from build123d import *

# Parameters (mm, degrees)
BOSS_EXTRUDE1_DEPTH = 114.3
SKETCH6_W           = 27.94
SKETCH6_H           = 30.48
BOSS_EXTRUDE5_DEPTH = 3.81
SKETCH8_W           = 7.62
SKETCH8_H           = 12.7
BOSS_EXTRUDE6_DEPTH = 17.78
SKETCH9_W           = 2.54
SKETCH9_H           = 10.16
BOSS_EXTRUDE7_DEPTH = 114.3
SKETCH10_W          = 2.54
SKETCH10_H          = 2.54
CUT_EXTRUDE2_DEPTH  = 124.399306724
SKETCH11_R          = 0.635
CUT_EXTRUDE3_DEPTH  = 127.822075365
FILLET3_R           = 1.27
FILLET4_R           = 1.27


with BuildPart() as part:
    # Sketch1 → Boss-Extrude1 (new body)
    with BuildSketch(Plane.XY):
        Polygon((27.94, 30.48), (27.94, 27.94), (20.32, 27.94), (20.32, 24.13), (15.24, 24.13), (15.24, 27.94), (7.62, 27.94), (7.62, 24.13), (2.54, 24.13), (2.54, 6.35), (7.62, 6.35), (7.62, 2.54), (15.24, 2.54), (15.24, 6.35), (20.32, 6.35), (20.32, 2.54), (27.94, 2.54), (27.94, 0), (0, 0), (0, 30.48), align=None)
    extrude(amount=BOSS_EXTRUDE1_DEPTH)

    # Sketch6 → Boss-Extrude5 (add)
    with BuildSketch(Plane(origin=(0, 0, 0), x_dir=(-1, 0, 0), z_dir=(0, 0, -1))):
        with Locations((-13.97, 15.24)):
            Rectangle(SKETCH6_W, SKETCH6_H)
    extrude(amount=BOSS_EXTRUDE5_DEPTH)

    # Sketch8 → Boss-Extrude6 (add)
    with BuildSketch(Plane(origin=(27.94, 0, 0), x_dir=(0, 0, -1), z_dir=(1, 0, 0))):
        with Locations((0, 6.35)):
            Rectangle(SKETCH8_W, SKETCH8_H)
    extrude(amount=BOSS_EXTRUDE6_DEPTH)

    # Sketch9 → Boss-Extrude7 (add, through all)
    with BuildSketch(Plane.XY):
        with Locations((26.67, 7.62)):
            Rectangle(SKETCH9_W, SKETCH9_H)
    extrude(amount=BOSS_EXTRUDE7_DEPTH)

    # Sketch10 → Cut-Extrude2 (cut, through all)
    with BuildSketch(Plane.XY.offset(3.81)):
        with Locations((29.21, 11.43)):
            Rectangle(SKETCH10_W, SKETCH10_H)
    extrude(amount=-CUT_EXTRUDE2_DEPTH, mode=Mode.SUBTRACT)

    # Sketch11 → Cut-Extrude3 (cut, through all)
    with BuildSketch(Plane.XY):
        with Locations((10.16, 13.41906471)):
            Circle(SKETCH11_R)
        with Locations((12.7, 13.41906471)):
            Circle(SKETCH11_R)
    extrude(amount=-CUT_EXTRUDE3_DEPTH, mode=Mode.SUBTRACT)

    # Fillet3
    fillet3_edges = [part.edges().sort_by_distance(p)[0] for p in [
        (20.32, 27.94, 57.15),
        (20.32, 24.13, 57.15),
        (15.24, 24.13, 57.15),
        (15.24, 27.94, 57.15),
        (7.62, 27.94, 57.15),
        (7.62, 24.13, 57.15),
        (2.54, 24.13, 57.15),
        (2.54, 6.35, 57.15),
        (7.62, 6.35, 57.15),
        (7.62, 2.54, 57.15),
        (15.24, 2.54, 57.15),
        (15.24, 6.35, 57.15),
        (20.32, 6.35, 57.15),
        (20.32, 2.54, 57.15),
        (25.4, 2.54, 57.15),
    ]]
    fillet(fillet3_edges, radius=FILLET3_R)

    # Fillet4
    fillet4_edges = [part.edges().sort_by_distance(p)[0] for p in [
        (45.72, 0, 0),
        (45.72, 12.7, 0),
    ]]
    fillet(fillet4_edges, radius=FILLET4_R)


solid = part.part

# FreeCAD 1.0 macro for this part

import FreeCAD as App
import Part
import Sketcher

V = App.Vector
Q = App.Units.Quantity


def edges_at(feature, points):
    """Names of the edges that pass closest to the given points."""
    edges = feature.Shape.Edges
    near = lambda p: min(range(len(edges)), key=lambda i: edges[i].distToShape(Part.Vertex(*p))[0])
    return sorted({f"Edge{near(p) + 1}" for p in points})

doc = App.newDocument("Part")
params = doc.addObject("Spreadsheet::Sheet", "Params")
for row, (alias, value) in enumerate([
    ("sketch1_width", "1.1 in"),
    ("sketch1_width2", "0.3 in"),
    ("sketch1_width3", "0.2 in"),
    ("sketch1_height", "0.1 in"),
    ("sketch1_height2", "1.2 in"),
    ("pad1_length", "4.5 in"),
    ("sketch2_width", "1.1 in"),
    ("sketch2_height", "1.2 in"),
    ("pad2_length", "0.15 in"),
    ("sketch3_width", "0.5 in"),
    ("sketch3_height", "0.3 in"),
    ("pad3_length", "0.7 in"),
    ("sketch4_width", "0.1 in"),
    ("sketch4_height", "0.4 in"),
    ("pad4_length", "4.5 in"),
    ("sketch5_width", "0.1 in"),
    ("sketch6_diameter", "0.05 in"),
    ("fillet_radius", "0.05 in"),
    ("fillet2_radius", "0.05 in"),
], start=1):
    params.set(f"A{row}", alias)
    params.set(f"B{row}", "=" + value)
    params.setAlias(f"B{row}", alias)

body = doc.addObject("PartDesign::Body", "Body")

# Sketch on XY plane
sketch1 = doc.addObject("Sketcher::SketchObject", "Sketch")
body.addObject(sketch1)
sketch1.AttachmentSupport = (doc.XY_Plane, [""])
sketch1.MapMode = "FlatFace"
sketch1.addGeometry(Part.LineSegment(V(27.9, 27.9, 0), V(27.9, 30.5, 0)), False)
sketch1.addGeometry(Part.LineSegment(V(27.9, 30.5, 0), V(0, 30.5, 0)), False)
sketch1.addGeometry(Part.LineSegment(V(0, 30.5, 0), V(0, 0, 0)), False)
sketch1.addGeometry(Part.LineSegment(V(0, 0, 0), V(27.9, 0, 0)), False)
sketch1.addGeometry(Part.LineSegment(V(27.9, 0, 0), V(27.9, 2.5, 0)), False)
sketch1.addGeometry(Part.LineSegment(V(27.9, 2.5, 0), V(20.3, 2.5, 0)), False)
sketch1.addGeometry(Part.LineSegment(V(20.3, 2.5, 0), V(20.3, 6.3, 0)), False)
sketch1.addGeometry(Part.LineSegment(V(20.3, 6.3, 0), V(15.2, 6.3, 0)), False)
sketch1.addGeometry(Part.LineSegment(V(15.2, 6.3, 0), V(15.2, 2.5, 0)), False)
sketch1.addGeometry(Part.LineSegment(V(15.2, 2.5, 0), V(7.6, 2.5, 0)), False)
sketch1.addGeometry(Part.LineSegment(V(7.6, 2.5, 0), V(7.6, 6.3, 0)), False)
sketch1.addGeometry(Part.LineSegment(V(7.6, 6.3, 0), V(2.5, 6.3, 0)), False)
sketch1.addGeometry(Part.LineSegment(V(2.5, 6.3, 0), V(2.5, 24.1, 0)), False)
sketch1.addGeometry(Part.LineSegment(V(2.5, 24.1, 0), V(7.6, 24.1, 0)), False)
sketch1.addGeometry(Part.LineSegment(V(7.6, 24.1, 0), V(7.6, 27.9, 0)), False)
sketch1.addGeometry(Part.LineSegment(V(7.6, 27.9, 0), V(15.2, 27.9, 0)), False)
sketch1.addGeometry(Part.LineSegment(V(15.2, 27.9, 0), V(15.2, 24.1, 0)), False)
sketch1.addGeometry(Part.LineSegment(V(15.2, 24.1, 0), V(20.3, 24.1, 0)), False)
sketch1.addGeometry(Part.LineSegment(V(20.3, 24.1, 0), V(20.3, 27.9, 0)), False)
sketch1.addGeometry(Part.LineSegment(V(20.3, 27.9, 0), V(27.9, 27.9, 0)), False)
sketch1.addConstraint(Sketcher.Constraint("Coincident", 0, 2, 1, 1))
sketch1.addConstraint(Sketcher.Constraint("Coincident", 1, 2, 2, 1))
sketch1.addConstraint(Sketcher.Constraint("Coincident", 2, 2, 3, 1))
sketch1.addConstraint(Sketcher.Constraint("Coincident", 3, 2, 4, 1))
sketch1.addConstraint(Sketcher.Constraint("Coincident", 4, 2, 5, 1))
sketch1.addConstraint(Sketcher.Constraint("Coincident", 5, 2, 6, 1))
sketch1.addConstraint(Sketcher.Constraint("Coincident", 6, 2, 7, 1))
sketch1.addConstraint(Sketcher.Constraint("Coincident", 7, 2, 8, 1))
sketch1.addConstraint(Sketcher.Constraint("Coincident", 8, 2, 9, 1))
sketch1.addConstraint(Sketcher.Constraint("Coincident", 9, 2, 10, 1))
sketch1.addConstraint(Sketcher.Constraint("Coincident", 10, 2, 11, 1))
sketch1.addConstraint(Sketcher.Constraint("Coincident", 11, 2, 12, 1))
sketch1.addConstraint(Sketcher.Constraint("Coincident", 12, 2, 13, 1))
sketch1.addConstraint(Sketcher.Constraint("Coincident", 13, 2, 14, 1))
sketch1.addConstraint(Sketcher.Constraint("Coincident", 14, 2, 15, 1))
sketch1.addConstraint(Sketcher.Constraint("Coincident", 15, 2, 16, 1))
sketch1.addConstraint(Sketcher.Constraint("Coincident", 16, 2, 17, 1))
sketch1.addConstraint(Sketcher.Constraint("Coincident", 17, 2, 18, 1))
sketch1.addConstraint(Sketcher.Constraint("Coincident", 18, 2, 19, 1))
sketch1.addConstraint(Sketcher.Constraint("Coincident", 19, 2, 0, 1))
sketch1.addConstraint(Sketcher.Constraint("Vertical", 0))
sketch1.addConstraint(Sketcher.Constraint("Horizontal", 1))
sketch1.addConstraint(Sketcher.Constraint("Vertical", 2))
sketch1.addConstraint(Sketcher.Constraint("Horizontal", 3))
sketch1.addConstraint(Sketcher.Constraint("Vertical", 4))
sketch1.addConstraint(Sketcher.Constraint("Horizontal", 5))
sketch1.addConstraint(Sketcher.Constraint("Vertical", 6))
sketch1.addConstraint(Sketcher.Constraint("Horizontal", 7))
sketch1.addConstraint(Sketcher.Constraint("Vertical", 8))
sketch1.addConstraint(Sketcher.Constraint("Horizontal", 9))
sketch1.addConstraint(Sketcher.Constraint("Vertical", 10))
sketch1.addConstraint(Sketcher.Constraint("Horizontal", 11))
sketch1.addConstraint(Sketcher.Constraint("Vertical", 12))
sketch1.addConstraint(Sketcher.Constraint("Horizontal", 13))
sketch1.addConstraint(Sketcher.Constraint("Vertical", 14))
sketch1.addConstraint(Sketcher.Constraint("Horizontal", 15))
sketch1.addConstraint(Sketcher.Constraint("Vertical", 16))
sketch1.addConstraint(Sketcher.Constraint("Horizontal", 17))
sketch1.addConstraint(Sketcher.Constraint("Vertical", 18))
sketch1.addConstraint(Sketcher.Constraint("Horizontal", 19))
sketch1.addConstraint(Sketcher.Constraint("Coincident", 2, 2, -1, 1))
sketch1.addConstraint(Sketcher.Constraint("Horizontal", 5, 2, 8, 2))
sketch1.addConstraint(Sketcher.Constraint("Horizontal", 7, 2, 10, 2))
sketch1.addConstraint(Sketcher.Constraint("Horizontal", 13, 2, 16, 2))
sketch1.addConstraint(Sketcher.Constraint("Horizontal", 15, 2, 18, 2))
sketch1.addConstraint(Sketcher.Constraint("Vertical", 0, 2, 3, 2))
sketch1.addConstraint(Sketcher.Constraint("Vertical", 10, 2, 13, 2))
sketch1.addConstraint(Sketcher.Constraint("Vertical", 8, 2, 15, 2))
sketch1.addConstraint(Sketcher.Constraint("Vertical", 6, 2, 17, 2))
sketch1.addConstraint(Sketcher.Constraint("Equal", 5, 9))
sketch1.addConstraint(Sketcher.Constraint("Equal", 7, 11))
sketch1.addConstraint(Sketcher.Constraint("Equal", 0, 4))
sketch1.addConstraint(Sketcher.Constraint("Equal", 10, 14))
sketch1.addConstraint(Sketcher.Constraint("DistanceX", 1, 2, 1, 1, Q("1.1 in")))
sketch1.addConstraint(Sketcher.Constraint("DistanceX", 5, 2, 5, 1, Q("0.3 in")))
sketch1.addConstraint(Sketcher.Constraint("DistanceX", 7, 2, 7, 1, Q("0.2 in")))
sketch1.addConstraint(Sketcher.Constraint("DistanceY", 0, 1, 0, 2, Q("0.1 in")))
sketch1.addConstraint(Sketcher.Constraint("DistanceY", 2, 2, 2, 1, Q("1.2 in")))
sketch1.addConstraint(Sketcher.Constraint("DistanceY", 12, 1, 12, 2, Q("0.7 in")))
sketch1.setExpression("Constraints[53]", "Params.sketch1_width")
sketch1.setExpression("Constraints[54]", "Params.sketch1_width2")
sketch1.setExpression("Constraints[55]", "Params.sketch1_width3")
sketch1.setExpression("Constraints[56]", "Params.sketch1_height")
sketch1.setExpression("Constraints[57]", "Params.sketch1_height2")
pad1 = doc.addObject("PartDesign::Pad", "Pad")
body.addObject(pad1)
pad1.Profile = sketch1
pad1.setExpression("Length", "Params.pad1_length")

# Sketch on XY plane
sketch2 = doc.addObject("Sketcher::SketchObject", "Sketch001")
body.addObject(sketch2)
sketch2.AttachmentSupport = (doc.XY_Plane, [""])
sketch2.MapMode = "FlatFace"
sketch2.addGeometry(Part.LineSegment(V(28, 30, 0), V(28, 0, 0)), False)
sketch2.addGeometry(Part.LineSegment(V(28, 0, 0), V(0, 0, 0)), False)
sketch2.addGeometry(Part.LineSegment(V(0, 0, 0), V(0, 30, 0)), False)
sketch2.addGeometry(Part.LineSegment(V(0, 30, 0), V(28, 30, 0)), False)
sketch2.addConstraint(Sketcher.Constraint("Coincident", 0, 2, 1, 1))
sketch2.addConstraint(Sketcher.Constraint("Coincident", 1, 2, 2, 1))
sketch2.addConstraint(Sketcher.Constraint("Coincident", 2, 2, 3, 1))
sketch2.addConstraint(Sketcher.Constraint("Coincident", 3, 2, 0, 1))
sketch2.addConstraint(Sketcher.Constraint("Vertical", 0))
sketch2.addConstraint(Sketcher.Constraint("Horizontal", 1))
sketch2.addConstraint(Sketcher.Constraint("Vertical", 2))
sketch2.addConstraint(Sketcher.Constraint("Horizontal", 3))
sketch2.addConstraint(Sketcher.Constraint("Coincident", 1, 2, -1, 1))
sketch2.addConstraint(Sketcher.Constraint("DistanceX", 1, 2, 1, 1, Q("1.1 in")))
sketch2.addConstraint(Sketcher.Constraint("DistanceY", 0, 2, 0, 1, Q("1.2 in")))
sketch2.setExpression("Constraints[9]", "Params.sketch2_width")
sketch2.setExpression("Constraints[10]", "Params.sketch2_height")
pad2 = doc.addObject("PartDesign::Pad", "Pad001")
body.addObject(pad2)
pad2.Profile = sketch2
pad2.setExpression("Length", "Params.pad2_length")
pad2.Reversed = True

# Sketch on YZ plane
sketch3 = doc.addObject("Sketcher::SketchObject", "Sketch002")
body.addObject(sketch3)
sketch3.AttachmentSupport = (doc.YZ_Plane, [""])
sketch3.MapMode = "FlatFace"
sketch3.AttachmentOffset = App.Placement(V(0, 0, 1.1 * 25.4), App.Rotation())
sketch3.addGeometry(Part.LineSegment(V(13, 4, 0), V(0, 4, 0)), False)
sketch3.addGeometry(Part.LineSegment(V(0, 4, 0), V(0, -4, 0)), False)
sketch3.addGeometry(Part.LineSegment(V(0, -4, 0), V(13, -4, 0)), False)
sketch3.addGeometry(Part.LineSegment(V(13, -4, 0), V(13, 4, 0)), False)
sketch3.addConstraint(Sketcher.Constraint("Coincident", 0, 2, 1, 1))
sketch3.addConstraint(Sketcher.Constraint("Coincident", 1, 2, 2, 1))
sketch3.addConstraint(Sketcher.Constraint("Coincident", 2, 2, 3, 1))
sketch3.addConstraint(Sketcher.Constraint("Coincident", 3, 2, 0, 1))
sketch3.addConstraint(Sketcher.Constraint("Horizontal", 0))
sketch3.addConstraint(Sketcher.Constraint("Vertical", 1))
sketch3.addConstraint(Sketcher.Constraint("Horizontal", 2))
sketch3.addConstraint(Sketcher.Constraint("Vertical", 3))
sketch3.addConstraint(Sketcher.Constraint("Symmetric", 0, 2, 1, 2, -1, 1))
sketch3.addConstraint(Sketcher.Constraint("DistanceX", 0, 2, 0, 1, Q("0.5 in")))
sketch3.addConstraint(Sketcher.Constraint("DistanceY", 1, 2, 1, 1, Q("0.3 in")))
sketch3.setExpression("Constraints[9]", "Params.sketch3_width")
sketch3.setExpression("Constraints[10]", "Params.sketch3_height")
pad3 = doc.addObject("PartDesign::Pad", "Pad002")
body.addObject(pad3)
pad3.Profile = sketch3
pad3.setExpression("Length", "Params.pad3_length")

# Sketch on XY plane
sketch4 = doc.addObject("Sketcher::SketchObject", "Sketch003")
body.addObject(sketch4)
sketch4.AttachmentSupport = (doc.XY_Plane, [""])
sketch4.MapMode = "FlatFace"
sketch4.addGeometry(Part.LineSegment(V(25.4, 12.7, 0), V(25.4, 2.5, 0)), False)
sketch4.addGeometry(Part.LineSegment(V(25.4, 2.5, 0), V(27.9, 2.5, 0)), False)
sketch4.addGeometry(Part.LineSegment(V(27.9, 2.5, 0), V(27.9, 12.7, 0)), False)
sketch4.addGeometry(Part.LineSegment(V(27.9, 12.7, 0), V(25.4, 12.7, 0)), False)
sketch4.addConstraint(Sketcher.Constraint("Coincident", 0, 2, 1, 1))
sketch4.addConstraint(Sketcher.Constraint("Coincident", 1, 2, 2, 1))
sketch4.addConstraint(Sketcher.Constraint("Coincident", 2, 2, 3, 1))
sketch4.addConstraint(Sketcher.Constraint("Coincident", 3, 2, 0, 1))
sketch4.addConstraint(Sketcher.Constraint("Vertical", 0))
sketch4.addConstraint(Sketcher.Constraint("Horizontal", 1))
sketch4.addConstraint(Sketcher.Constraint("Vertical", 2))
sketch4.addConstraint(Sketcher.Constraint("Horizontal", 3))
sketch4.addConstraint(Sketcher.Constraint("DistanceX", 1, 1, 1, 2, Q("0.1 in")))
sketch4.addConstraint(Sketcher.Constraint("DistanceY", 0, 2, 0, 1, Q("0.4 in")))
sketch4.addConstraint(Sketcher.Constraint("DistanceX", -1, 1, 0, 2, Q("1 in")))
sketch4.addConstraint(Sketcher.Constraint("DistanceY", -1, 1, 0, 2, Q("0.1 in")))
sketch4.setExpression("Constraints[8]", "Params.sketch4_width")
sketch4.setExpression("Constraints[9]", "Params.sketch4_height")
pad4 = doc.addObject("PartDesign::Pad", "Pad003")
body.addObject(pad4)
pad4.Profile = sketch4
pad4.setExpression("Length", "Params.pad4_length")

# Sketch on XY plane
sketch5 = doc.addObject("Sketcher::SketchObject", "Sketch004")
body.addObject(sketch5)
sketch5.AttachmentSupport = (doc.XY_Plane, [""])
sketch5.MapMode = "FlatFace"
sketch5.AttachmentOffset = App.Placement(V(0, 0, 0.15 * 25.4), App.Rotation())
sketch5.addGeometry(Part.LineSegment(V(27.9, 12.7, 0), V(27.9, 10.2, 0)), False)
sketch5.addGeometry(Part.LineSegment(V(27.9, 10.2, 0), V(30.5, 10.2, 0)), False)
sketch5.addGeometry(Part.LineSegment(V(30.5, 10.2, 0), V(30.5, 12.7, 0)), False)
sketch5.addGeometry(Part.LineSegment(V(30.5, 12.7, 0), V(27.9, 12.7, 0)), False)
sketch5.addConstraint(Sketcher.Constraint("Coincident", 0, 2, 1, 1))
sketch5.addConstraint(Sketcher.Constraint("Coincident", 1, 2, 2, 1))
sketch5.addConstraint(Sketcher.Constraint("Coincident", 2, 2, 3, 1))
sketch5.addConstraint(Sketcher.Constraint("Coincident", 3, 2, 0, 1))
sketch5.addConstraint(Sketcher.Constraint("Vertical", 0))
sketch5.addConstraint(Sketcher.Constraint("Horizontal", 1))
sketch5.addConstraint(Sketcher.Constraint("Vertical", 2))
sketch5.addConstraint(Sketcher.Constraint("Horizontal", 3))
sketch5.addConstraint(Sketcher.Constraint("Equal", 3, 0))
sketch5.addConstraint(Sketcher.Constraint("DistanceX", 1, 1, 1, 2, Q("0.1 in")))
sketch5.addConstraint(Sketcher.Constraint("DistanceX", -1, 1, 0, 2, Q("1.1 in")))
sketch5.addConstraint(Sketcher.Constraint("DistanceY", -1, 1, 0, 2, Q("0.4 in")))
sketch5.setExpression("Constraints[9]", "Params.sketch5_width")
pocket1 = doc.addObject("PartDesign::Pocket", "Pocket")
body.addObject(pocket1)
pocket1.Profile = sketch5
pocket1.Type = "ThroughAll"

# Sketch on XY plane
sketch6 = doc.addObject("Sketcher::SketchObject", "Sketch005")
body.addObject(sketch6)
sketch6.AttachmentSupport = (doc.XY_Plane, [""])
sketch6.MapMode = "FlatFace"
sketch6.addGeometry(Part.Circle(V(10.2, 13.4, 0), V(0, 0, 1), 0.6), False)
sketch6.addGeometry(Part.Circle(V(12.7, 13.4, 0), V(0, 0, 1), 0.6), False)
sketch6.addConstraint(Sketcher.Constraint("Equal", 0, 1))
sketch6.addConstraint(Sketcher.Constraint("Horizontal", 0, 3, 1, 3))
sketch6.addConstraint(Sketcher.Constraint("Diameter", 0, Q("0.05 in")))
sketch6.addConstraint(Sketcher.Constraint("DistanceX", -1, 1, 0, 3, Q("0.4 in")))
sketch6.addConstraint(Sketcher.Constraint("DistanceX", -1, 1, 1, 3, Q("0.5 in")))
sketch6.addConstraint(Sketcher.Constraint("DistanceY", -1, 1, 0, 3, 13.419065))
sketch6.setExpression("Constraints[2]", "Params.sketch6_diameter")
pocket2 = doc.addObject("PartDesign::Pocket", "Pocket001")
body.addObject(pocket2)
pocket2.Profile = sketch6
pocket2.Type = "ThroughAll"
doc.recompute()

fillet = doc.addObject("PartDesign::Fillet", "Fillet")
body.addObject(fillet)
fillet.Base = (pocket2, edges_at(pocket2, [
    (20.32, 27.94, 57.15),
    (20.32, 24.13, 57.15),
    (15.24, 24.13, 57.15),
    (15.24, 27.94, 57.15),
    (7.62, 27.94, 57.15),
    (7.62, 24.13, 57.15),
    (2.54, 24.13, 57.15),
    (2.54, 6.35, 57.15),
    (7.62, 6.35, 57.15),
    (7.62, 2.54, 57.15),
    (15.24, 2.54, 57.15),
    (15.24, 6.35, 57.15),
    (20.32, 6.35, 57.15),
    (20.32, 2.54, 57.15),
    (25.4, 2.54, 57.15),
]))
fillet.setExpression("Radius", "Params.fillet_radius")
doc.recompute()

fillet2 = doc.addObject("PartDesign::Fillet", "Fillet001")
body.addObject(fillet2)
fillet2.Base = (fillet, edges_at(fillet, [(45.72, 0, 0), (45.72, 12.7, 0)]))
fillet2.setExpression("Radius", "Params.fillet2_radius")

doc.recompute()
